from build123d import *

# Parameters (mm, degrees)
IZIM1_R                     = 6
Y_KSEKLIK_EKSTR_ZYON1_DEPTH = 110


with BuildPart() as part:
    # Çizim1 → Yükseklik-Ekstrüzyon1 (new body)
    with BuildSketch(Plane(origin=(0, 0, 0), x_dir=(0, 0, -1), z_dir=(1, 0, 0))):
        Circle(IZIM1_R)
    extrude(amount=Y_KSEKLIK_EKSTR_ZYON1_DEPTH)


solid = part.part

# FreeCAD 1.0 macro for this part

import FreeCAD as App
import Part
import Sketcher

V = App.Vector
Q = App.Units.Quantity

doc = App.newDocument("Part")
body = doc.addObject("PartDesign::Body", "Body")

sketch1 = body.newObject("Sketcher::SketchObject", "Sketch")
sketch1.AttachmentSupport = (doc.getObject("YZ_Plane"), [""])
sketch1.MapMode = "FlatFace"
sketch1.addGeometry(Part.Circle(V(0, 0, 0), V(0, 0, 1), 6), False)
sketch1.addConstraint(Sketcher.Constraint("Coincident", 0, 3, -1, 1))
sketch1.addConstraint(Sketcher.Constraint("Diameter", 0, Q("12 mm")))
pad1 = body.newObject("PartDesign::Pad", "Pad")
pad1.Profile = sketch1
pad1.Length = 110

doc.recompute()
